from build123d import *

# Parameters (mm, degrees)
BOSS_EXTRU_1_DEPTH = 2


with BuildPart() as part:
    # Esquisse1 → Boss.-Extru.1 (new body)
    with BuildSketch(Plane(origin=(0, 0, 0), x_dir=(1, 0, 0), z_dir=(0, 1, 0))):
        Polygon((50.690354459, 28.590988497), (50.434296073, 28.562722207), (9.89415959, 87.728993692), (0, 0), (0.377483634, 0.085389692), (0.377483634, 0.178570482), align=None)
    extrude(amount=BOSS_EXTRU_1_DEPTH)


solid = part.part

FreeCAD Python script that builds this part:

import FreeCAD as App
import Part
import Sketcher
from FreeCAD import Vector
Q = App.Units.Quantity


def add_polygon(sketch, points):
    """Adds a closed chain of lines whose ends are joined by coincident constraints."""
    first, n = sketch.GeometryCount, len(points)
    for a, b in zip(points, points[1:] + points[:1]):
        sketch.addGeometry(Part.LineSegment(App.Vector(*a, 0), App.Vector(*b, 0)), False)
    for i in range(n):
        sketch.addConstraint(Sketcher.Constraint("Coincident", first + i, 2, first + (i + 1) % n, 1))

doc = App.newDocument("Part")
body = doc.addObject("PartDesign::Body", "Body")

sketch1 = body.newObject("Sketcher::SketchObject", "Sketch")
sketch1.AttachmentSupport = (doc.getObject("XZ_Plane"), [""])
sketch1.MapMode = "FlatFace"
add_polygon(sketch1, [(50.69, -28.59), (50.43, -28.56), (9.89, -87.73), (0, 0), (0.38, -0.09), (0.38, -0.18)])
sketch1.addConstraint(Sketcher.Constraint("Vertical", 4))
sketch1.addConstraint(Sketcher.Constraint("Coincident", 2, 2, -1, 1))
sketch1.addConstraint(Sketcher.Constraint("DistanceY", 4, 2, 4, 1, Q("0.093181 mm")))
sketch1.addConstraint(Sketcher.Constraint("DistanceY", 5, 2, 3, 2, Q("28.505599 mm")))
sketch1.addConstraint(Sketcher.Constraint("Distance", 3, Q("0.387021 mm")))
sketch1.addConstraint(Sketcher.Constraint("DistanceX", -1, 1, 1, 2, Q("9.89416 mm")))
sketch1.addConstraint(Sketcher.Constraint("DistanceY", 3, 2, -1, 1, Q("0.08539 mm")))
sketch1.addConstraint(Sketcher.Constraint("DistanceY", 1, 2, 0, 2, Q("59.166271 mm")))
sketch1.addConstraint(Sketcher.Constraint("DistanceY", 0, 2, 4, 2, Q("28.384152 mm")))
sketch1.addConstraint(Sketcher.Constraint("DistanceX", 0, 2, 5, 2, Q("0.256058 mm")))
sketch1.addConstraint(Sketcher.Constraint("DistanceX", 4, 2, 5, 2, Q("50.312871 mm")))
pad1 = body.newObject("PartDesign::Pad", "Pad")
pad1.Profile = sketch1
pad1.Length = 2
pad1.Reversed = True

doc.recompute()
